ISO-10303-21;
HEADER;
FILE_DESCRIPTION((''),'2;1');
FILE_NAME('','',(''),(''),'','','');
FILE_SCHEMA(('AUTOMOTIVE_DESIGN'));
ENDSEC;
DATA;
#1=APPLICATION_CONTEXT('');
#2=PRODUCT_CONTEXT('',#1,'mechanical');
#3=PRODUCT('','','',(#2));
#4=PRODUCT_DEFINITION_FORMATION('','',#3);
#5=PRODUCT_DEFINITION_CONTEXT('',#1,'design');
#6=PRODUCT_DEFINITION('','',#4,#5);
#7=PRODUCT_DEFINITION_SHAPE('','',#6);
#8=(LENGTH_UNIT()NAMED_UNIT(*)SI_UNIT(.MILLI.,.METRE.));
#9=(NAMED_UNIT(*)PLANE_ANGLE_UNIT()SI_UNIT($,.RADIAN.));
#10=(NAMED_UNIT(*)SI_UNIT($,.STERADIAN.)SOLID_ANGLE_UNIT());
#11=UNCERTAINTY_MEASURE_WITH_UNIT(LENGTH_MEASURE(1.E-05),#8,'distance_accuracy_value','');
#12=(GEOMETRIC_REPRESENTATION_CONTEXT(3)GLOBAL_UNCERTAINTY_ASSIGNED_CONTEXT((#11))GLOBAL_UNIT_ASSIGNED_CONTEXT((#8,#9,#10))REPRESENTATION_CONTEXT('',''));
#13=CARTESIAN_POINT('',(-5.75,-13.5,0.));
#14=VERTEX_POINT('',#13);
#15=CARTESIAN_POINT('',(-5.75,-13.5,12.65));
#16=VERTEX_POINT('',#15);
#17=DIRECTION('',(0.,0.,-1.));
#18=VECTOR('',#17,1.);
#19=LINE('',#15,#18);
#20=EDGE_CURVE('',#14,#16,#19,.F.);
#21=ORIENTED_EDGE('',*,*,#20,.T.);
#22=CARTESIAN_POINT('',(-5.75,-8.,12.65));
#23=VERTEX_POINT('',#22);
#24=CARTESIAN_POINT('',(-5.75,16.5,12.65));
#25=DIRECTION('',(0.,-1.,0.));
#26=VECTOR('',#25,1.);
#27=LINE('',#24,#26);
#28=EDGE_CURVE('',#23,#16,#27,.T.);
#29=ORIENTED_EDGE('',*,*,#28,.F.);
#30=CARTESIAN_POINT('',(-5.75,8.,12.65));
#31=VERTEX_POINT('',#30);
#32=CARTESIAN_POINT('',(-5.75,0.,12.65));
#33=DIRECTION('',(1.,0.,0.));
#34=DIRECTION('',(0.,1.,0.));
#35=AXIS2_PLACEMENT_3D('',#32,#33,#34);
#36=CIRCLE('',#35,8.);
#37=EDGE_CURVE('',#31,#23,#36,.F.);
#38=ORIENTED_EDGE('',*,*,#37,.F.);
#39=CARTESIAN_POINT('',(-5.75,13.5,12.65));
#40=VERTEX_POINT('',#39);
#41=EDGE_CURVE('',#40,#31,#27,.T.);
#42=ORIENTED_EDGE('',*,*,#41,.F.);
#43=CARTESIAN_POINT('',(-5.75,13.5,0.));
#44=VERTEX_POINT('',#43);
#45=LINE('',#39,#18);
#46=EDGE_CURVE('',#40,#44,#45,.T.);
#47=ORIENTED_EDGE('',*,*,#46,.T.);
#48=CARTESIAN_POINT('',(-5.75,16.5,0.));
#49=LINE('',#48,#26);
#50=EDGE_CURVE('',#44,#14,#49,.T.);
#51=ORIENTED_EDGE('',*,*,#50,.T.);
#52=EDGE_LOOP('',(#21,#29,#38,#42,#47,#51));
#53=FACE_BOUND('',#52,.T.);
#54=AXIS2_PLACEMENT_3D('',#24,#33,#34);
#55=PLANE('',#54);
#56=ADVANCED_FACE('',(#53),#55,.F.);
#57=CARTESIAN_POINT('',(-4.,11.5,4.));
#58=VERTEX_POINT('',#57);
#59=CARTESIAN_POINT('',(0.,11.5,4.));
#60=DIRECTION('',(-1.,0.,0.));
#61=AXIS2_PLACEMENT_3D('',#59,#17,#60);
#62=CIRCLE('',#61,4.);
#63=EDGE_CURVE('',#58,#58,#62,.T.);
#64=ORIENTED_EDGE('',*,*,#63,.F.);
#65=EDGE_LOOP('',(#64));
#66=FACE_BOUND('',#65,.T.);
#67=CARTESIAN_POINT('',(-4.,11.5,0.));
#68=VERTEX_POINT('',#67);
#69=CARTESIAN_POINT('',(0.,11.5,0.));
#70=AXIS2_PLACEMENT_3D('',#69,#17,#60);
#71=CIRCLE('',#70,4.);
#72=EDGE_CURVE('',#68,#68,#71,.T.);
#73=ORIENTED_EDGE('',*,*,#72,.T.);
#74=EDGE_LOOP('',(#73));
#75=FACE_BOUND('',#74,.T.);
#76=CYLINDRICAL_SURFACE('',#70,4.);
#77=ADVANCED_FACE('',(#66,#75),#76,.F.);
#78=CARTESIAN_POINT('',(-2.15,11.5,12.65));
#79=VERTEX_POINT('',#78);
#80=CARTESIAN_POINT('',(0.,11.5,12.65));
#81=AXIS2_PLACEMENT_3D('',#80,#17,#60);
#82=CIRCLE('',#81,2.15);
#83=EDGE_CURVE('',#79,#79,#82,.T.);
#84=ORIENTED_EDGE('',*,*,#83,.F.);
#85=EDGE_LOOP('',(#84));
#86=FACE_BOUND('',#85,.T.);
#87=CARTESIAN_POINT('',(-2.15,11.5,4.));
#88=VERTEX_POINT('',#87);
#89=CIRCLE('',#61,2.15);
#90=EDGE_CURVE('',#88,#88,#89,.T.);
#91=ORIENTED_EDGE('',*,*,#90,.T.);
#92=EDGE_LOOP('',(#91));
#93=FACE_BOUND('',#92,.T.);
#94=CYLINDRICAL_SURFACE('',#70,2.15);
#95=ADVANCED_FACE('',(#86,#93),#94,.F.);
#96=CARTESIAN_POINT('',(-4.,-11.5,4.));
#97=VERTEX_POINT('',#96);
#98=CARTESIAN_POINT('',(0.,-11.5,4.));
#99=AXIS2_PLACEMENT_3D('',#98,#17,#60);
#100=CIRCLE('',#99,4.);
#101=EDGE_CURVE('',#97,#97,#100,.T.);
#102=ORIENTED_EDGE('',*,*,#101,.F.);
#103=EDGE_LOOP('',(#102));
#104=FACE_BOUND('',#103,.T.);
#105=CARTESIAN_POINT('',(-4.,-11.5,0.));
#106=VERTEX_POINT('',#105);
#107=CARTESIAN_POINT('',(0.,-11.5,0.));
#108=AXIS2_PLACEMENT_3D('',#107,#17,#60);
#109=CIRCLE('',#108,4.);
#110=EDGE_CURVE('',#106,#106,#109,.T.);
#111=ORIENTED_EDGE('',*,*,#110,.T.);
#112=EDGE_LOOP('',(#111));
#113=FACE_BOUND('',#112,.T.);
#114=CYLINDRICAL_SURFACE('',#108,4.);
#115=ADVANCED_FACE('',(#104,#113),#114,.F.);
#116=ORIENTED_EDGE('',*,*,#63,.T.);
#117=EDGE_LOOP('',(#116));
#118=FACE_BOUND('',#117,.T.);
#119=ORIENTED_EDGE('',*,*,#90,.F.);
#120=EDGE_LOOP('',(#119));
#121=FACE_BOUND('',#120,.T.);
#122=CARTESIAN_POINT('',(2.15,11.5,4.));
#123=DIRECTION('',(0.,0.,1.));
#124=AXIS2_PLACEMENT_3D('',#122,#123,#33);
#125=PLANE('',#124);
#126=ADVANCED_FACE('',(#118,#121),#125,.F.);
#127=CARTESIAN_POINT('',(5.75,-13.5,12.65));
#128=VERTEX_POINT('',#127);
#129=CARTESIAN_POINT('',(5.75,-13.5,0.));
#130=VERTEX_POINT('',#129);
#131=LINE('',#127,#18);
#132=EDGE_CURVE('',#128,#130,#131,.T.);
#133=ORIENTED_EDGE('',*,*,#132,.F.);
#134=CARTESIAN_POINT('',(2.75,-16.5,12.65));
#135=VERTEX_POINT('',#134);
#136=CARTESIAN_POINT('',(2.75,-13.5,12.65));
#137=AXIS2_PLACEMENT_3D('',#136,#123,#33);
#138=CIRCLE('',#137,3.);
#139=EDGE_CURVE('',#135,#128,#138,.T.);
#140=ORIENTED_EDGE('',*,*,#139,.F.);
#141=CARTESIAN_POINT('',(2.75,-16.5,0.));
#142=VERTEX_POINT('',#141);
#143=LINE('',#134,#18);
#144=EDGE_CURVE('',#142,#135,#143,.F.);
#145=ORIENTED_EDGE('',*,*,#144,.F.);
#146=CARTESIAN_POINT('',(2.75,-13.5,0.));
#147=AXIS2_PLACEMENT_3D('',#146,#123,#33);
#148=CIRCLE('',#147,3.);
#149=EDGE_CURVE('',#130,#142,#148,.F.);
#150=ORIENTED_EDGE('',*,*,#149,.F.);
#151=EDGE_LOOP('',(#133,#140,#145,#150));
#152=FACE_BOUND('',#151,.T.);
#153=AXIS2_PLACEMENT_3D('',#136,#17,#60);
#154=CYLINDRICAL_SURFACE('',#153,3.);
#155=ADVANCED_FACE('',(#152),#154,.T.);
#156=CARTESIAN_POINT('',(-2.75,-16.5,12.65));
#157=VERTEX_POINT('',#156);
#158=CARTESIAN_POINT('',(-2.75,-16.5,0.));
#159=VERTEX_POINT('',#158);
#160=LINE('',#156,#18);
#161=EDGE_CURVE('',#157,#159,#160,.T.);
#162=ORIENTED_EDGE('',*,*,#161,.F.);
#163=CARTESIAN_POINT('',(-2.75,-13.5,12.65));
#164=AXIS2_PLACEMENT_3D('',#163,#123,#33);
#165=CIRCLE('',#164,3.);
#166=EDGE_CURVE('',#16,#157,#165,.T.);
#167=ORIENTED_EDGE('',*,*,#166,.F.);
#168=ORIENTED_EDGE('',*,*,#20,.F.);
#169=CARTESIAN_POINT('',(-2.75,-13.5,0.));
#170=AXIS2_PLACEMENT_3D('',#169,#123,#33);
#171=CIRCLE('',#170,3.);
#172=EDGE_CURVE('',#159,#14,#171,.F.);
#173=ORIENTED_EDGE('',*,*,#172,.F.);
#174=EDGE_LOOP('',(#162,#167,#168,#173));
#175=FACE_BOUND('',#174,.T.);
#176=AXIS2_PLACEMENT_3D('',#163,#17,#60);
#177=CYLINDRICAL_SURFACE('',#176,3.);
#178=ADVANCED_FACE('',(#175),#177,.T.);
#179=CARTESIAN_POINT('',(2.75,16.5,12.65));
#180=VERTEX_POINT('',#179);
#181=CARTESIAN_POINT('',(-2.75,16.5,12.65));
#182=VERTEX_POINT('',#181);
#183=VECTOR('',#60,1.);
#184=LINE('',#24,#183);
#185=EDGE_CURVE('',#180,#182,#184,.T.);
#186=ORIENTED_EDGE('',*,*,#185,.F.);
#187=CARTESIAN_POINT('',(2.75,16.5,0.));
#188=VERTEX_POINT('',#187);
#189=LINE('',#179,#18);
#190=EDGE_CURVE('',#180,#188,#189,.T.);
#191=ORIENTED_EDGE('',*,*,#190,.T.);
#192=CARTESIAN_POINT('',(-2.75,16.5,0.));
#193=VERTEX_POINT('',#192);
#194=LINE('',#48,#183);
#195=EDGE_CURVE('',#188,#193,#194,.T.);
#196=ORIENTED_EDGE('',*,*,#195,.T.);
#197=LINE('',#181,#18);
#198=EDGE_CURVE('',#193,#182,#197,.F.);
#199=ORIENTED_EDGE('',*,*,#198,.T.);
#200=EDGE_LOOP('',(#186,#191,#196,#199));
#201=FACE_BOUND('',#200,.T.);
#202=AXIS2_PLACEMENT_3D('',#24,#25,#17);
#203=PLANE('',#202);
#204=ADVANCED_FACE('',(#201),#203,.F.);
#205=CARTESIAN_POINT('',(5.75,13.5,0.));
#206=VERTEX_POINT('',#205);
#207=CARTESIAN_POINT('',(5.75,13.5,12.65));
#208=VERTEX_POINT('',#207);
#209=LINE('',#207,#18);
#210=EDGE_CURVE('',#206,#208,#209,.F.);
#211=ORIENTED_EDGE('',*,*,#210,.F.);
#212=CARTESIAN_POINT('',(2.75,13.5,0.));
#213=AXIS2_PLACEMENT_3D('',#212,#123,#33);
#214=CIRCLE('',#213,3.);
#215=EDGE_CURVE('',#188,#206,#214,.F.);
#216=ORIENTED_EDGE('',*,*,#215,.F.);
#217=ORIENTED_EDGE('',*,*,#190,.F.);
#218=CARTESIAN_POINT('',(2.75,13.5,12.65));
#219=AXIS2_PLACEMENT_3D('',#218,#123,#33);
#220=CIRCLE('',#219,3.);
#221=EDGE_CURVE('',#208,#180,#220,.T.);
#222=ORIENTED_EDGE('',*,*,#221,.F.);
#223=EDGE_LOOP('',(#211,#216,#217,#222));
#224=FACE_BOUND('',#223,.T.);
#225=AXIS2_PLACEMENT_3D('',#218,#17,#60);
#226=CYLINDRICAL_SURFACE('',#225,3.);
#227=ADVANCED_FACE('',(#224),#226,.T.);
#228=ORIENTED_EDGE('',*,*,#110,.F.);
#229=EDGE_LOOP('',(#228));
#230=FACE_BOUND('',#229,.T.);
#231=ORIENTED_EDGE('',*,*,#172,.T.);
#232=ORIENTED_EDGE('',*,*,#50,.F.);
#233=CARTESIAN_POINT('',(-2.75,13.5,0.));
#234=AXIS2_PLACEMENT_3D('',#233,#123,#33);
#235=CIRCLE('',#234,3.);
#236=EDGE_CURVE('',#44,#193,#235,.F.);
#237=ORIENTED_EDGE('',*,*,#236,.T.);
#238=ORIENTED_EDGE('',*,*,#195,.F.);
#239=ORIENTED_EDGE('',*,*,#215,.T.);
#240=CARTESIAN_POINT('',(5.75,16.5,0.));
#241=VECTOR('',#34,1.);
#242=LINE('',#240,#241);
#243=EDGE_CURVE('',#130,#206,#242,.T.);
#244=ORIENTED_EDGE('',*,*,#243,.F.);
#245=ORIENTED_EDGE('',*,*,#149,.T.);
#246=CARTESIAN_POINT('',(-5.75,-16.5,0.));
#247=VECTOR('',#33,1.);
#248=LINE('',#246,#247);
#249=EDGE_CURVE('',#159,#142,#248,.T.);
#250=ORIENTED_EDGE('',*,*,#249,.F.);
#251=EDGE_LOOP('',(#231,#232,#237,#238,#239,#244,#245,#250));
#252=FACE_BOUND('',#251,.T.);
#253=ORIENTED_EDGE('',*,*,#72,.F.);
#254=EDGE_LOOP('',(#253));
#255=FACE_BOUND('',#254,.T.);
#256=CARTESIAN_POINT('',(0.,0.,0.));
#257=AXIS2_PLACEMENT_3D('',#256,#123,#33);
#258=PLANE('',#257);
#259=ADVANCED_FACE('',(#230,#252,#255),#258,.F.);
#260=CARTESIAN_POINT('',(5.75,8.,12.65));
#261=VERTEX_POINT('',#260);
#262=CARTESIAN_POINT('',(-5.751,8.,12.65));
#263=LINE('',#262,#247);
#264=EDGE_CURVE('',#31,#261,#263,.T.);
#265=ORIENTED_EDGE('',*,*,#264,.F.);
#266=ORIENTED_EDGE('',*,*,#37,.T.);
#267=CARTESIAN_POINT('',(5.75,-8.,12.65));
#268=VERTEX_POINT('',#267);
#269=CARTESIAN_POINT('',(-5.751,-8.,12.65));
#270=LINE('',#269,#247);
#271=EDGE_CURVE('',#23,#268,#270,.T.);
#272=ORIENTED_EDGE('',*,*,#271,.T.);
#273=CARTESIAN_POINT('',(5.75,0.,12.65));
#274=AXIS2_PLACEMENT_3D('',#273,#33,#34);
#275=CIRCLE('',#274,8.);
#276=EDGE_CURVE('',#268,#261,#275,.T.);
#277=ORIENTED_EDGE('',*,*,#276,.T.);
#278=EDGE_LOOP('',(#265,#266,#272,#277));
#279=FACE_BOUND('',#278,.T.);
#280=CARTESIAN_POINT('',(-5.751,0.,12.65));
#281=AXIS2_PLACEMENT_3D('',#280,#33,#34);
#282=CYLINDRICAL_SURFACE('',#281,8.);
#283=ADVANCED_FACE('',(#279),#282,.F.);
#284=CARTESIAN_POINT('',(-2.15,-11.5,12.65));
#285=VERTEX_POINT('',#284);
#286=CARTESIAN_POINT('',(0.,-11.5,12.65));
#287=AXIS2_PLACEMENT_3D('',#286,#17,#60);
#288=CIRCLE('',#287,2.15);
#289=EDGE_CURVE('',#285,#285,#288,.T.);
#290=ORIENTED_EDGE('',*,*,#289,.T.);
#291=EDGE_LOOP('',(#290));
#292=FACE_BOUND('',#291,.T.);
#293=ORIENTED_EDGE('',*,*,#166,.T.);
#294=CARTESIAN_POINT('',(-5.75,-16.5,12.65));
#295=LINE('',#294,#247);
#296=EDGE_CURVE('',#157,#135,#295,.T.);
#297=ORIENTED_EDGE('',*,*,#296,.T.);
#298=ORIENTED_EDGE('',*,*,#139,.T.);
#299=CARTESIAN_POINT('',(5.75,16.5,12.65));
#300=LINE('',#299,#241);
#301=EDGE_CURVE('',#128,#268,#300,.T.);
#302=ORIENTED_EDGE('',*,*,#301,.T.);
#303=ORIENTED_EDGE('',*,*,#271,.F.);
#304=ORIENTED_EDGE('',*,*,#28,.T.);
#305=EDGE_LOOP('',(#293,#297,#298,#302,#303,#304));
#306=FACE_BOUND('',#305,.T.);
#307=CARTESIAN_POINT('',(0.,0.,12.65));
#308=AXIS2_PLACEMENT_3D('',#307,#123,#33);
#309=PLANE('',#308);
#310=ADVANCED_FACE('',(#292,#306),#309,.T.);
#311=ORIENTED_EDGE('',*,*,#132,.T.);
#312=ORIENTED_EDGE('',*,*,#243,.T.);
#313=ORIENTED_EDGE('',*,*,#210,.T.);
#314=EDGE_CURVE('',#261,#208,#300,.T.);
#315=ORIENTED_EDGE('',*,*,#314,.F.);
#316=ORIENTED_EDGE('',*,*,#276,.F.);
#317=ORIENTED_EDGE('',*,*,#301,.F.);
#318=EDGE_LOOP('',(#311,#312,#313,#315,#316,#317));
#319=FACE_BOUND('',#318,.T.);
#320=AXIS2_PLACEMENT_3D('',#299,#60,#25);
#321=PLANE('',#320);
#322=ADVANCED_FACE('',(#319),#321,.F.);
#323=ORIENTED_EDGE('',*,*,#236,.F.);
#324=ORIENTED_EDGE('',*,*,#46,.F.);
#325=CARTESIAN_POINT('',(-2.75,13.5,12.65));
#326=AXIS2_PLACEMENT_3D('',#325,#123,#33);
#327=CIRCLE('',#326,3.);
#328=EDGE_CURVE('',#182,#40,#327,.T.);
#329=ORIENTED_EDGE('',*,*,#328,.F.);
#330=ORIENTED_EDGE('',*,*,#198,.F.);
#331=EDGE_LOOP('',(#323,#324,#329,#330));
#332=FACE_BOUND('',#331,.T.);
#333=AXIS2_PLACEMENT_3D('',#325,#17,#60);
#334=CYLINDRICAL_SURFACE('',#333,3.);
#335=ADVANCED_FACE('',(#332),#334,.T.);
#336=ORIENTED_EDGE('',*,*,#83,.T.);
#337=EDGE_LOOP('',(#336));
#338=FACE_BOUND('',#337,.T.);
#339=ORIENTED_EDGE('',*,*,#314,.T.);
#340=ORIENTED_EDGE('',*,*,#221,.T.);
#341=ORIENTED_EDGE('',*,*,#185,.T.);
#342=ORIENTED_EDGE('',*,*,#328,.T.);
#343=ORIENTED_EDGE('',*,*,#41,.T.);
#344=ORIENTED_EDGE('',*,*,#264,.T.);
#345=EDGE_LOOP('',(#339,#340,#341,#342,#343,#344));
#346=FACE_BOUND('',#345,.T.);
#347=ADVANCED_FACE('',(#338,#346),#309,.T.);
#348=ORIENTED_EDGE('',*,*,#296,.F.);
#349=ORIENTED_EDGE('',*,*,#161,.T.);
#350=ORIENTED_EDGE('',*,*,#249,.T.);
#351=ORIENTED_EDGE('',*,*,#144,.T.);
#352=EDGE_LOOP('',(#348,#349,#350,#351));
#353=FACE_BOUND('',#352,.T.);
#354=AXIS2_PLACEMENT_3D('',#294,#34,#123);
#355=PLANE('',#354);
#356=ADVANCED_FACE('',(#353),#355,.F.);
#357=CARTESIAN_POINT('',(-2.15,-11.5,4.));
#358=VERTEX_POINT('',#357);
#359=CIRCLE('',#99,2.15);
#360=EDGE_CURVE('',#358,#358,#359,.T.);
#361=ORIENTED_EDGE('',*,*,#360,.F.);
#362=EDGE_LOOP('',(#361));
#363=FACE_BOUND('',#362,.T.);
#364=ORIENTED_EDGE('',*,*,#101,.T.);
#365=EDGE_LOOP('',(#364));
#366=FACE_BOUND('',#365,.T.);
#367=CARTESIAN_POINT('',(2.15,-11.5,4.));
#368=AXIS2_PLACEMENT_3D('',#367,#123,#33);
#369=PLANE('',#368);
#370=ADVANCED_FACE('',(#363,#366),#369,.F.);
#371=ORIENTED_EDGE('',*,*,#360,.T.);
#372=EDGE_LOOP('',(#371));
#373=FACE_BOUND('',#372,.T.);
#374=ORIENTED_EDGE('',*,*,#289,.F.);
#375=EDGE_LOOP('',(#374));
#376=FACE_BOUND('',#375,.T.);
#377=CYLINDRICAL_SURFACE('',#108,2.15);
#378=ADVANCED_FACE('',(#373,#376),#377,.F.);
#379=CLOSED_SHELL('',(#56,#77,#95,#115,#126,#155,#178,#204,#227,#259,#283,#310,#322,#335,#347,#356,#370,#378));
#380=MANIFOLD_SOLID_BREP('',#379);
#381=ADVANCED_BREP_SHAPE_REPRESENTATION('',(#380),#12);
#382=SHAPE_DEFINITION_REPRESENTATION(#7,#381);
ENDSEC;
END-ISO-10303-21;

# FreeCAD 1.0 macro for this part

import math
import FreeCAD as App
import Part
import Sketcher


def edges_at(feature, points):
    """Names of the edges that pass closest to the given points."""
    edges = feature.Shape.Edges
    near = lambda p: min(range(len(edges)), key=lambda i: edges[i].distToShape(Part.Vertex(*p))[0])
    return sorted({f"Edge{near(p) + 1}" for p in points})


def add_polygon(sketch, points):
    """Adds a closed chain of lines whose ends are joined by coincident constraints."""
    first, n = sketch.GeometryCount, len(points)
    for a, b in zip(points, points[1:] + points[:1]):
        sketch.addGeometry(Part.LineSegment(App.Vector(*a, 0), App.Vector(*b, 0)), False)
    for i in range(n):
        sketch.addConstraint(Sketcher.Constraint("Coincident", first + i, 2, first + (i + 1) % n, 1))

doc = App.newDocument("Part")
body = doc.addObject("PartDesign::Body", "Body")

# Sketch on XY plane
sketch1 = body.newObject("Sketcher::SketchObject", "Sketch")
sketch1.AttachmentSupport = (doc.getObject("XY_Plane"), [""])
sketch1.MapMode = "FlatFace"
add_polygon(sketch1, [(-6, 16), (-6, -16), (6, -16), (6, 16)])  # lines 0-3
sketch1.addConstraint(Sketcher.Constraint("Vertical", 0))
sketch1.addConstraint(Sketcher.Constraint("Horizontal", 1))
sketch1.addConstraint(Sketcher.Constraint("Vertical", 2))
sketch1.addConstraint(Sketcher.Constraint("Horizontal", 3))
sketch1.addConstraint(Sketcher.Constraint("Symmetric", 0, 2, 2, 2, -1, 1))
sketch1.addConstraint(Sketcher.Constraint("DistanceY", 0, 2, 0, 1, 33.0))
sketch1.addConstraint(Sketcher.Constraint("DistanceX", 1, 1, 1, 2, 11.5))
pad1 = body.newObject("PartDesign::Pad", "Pad")
pad1.Profile = sketch1
pad1.Length = 12.65
doc.recompute()

fillet = body.newObject("PartDesign::Fillet", "Fillet")
fillet.Base = (pad1, edges_at(pad1, [
    (5.75, -16.5, 6.325),
    (-5.75, -16.5, 6.325),
    (-5.75, 16.5, 6.325),
    (5.75, 16.5, 6.325),
]))
fillet.Radius = 3

# Sketch on YZ plane
sketch2 = body.newObject("Sketcher::SketchObject", "Sketch001")
sketch2.AttachmentSupport = (doc.getObject("YZ_Plane"), [""])
sketch2.MapMode = "FlatFace"
sketch2.AttachmentOffset = App.Placement(App.Vector(0, 0, 5.75), App.Rotation())
sketch2.addGeometry(Part.LineSegment(App.Vector(8, 13, 0), App.Vector(-8, 13, 0)), False)
sketch2.addGeometry(Part.ArcOfCircle(Part.Circle(App.Vector(0, 13, 0), App.Vector(0, 0, 1), 8), math.radians(180), math.radians(360)), False)
sketch2.addConstraint(Sketcher.Constraint("Coincident", 0, 1, 1, 2))
sketch2.addConstraint(Sketcher.Constraint("Coincident", 1, 1, 0, 2))
sketch2.addConstraint(Sketcher.Constraint("Horizontal", 0))
sketch2.addConstraint(Sketcher.Constraint("PointOnObject", 1, 3, -2))
sketch2.addConstraint(Sketcher.Constraint("Horizontal", 1, 3, 0, 1))
sketch2.addConstraint(Sketcher.Constraint("Radius", 1, 8.0))
sketch2.addConstraint(Sketcher.Constraint("DistanceY", -1, 1, 1, 3, 12.65))
pocket1 = body.newObject("PartDesign::Pocket", "Pocket")
pocket1.Profile = sketch2
pocket1.Type = "UpToFirst"

# Sketch on XY plane
sketch3 = body.newObject("Sketcher::SketchObject", "Sketch002")
sketch3.AttachmentSupport = (doc.getObject("XY_Plane"), [""])
sketch3.MapMode = "FlatFace"
sketch3.addGeometry(Part.Circle(App.Vector(0, 11.5, 0), App.Vector(0, 0, 1), 2.1), False)
sketch3.addGeometry(Part.Circle(App.Vector(0, -11.5, 0), App.Vector(0, 0, 1), 2.1), False)
sketch3.addConstraint(Sketcher.Constraint("Equal", 0, 1))
sketch3.addConstraint(Sketcher.Constraint("Symmetric", 0, 3, 1, 3, -1, 1))
sketch3.addConstraint(Sketcher.Constraint("PointOnObject", 0, 3, -2))
sketch3.addConstraint(Sketcher.Constraint("Diameter", 0, 4.3))
sketch3.addConstraint(Sketcher.Constraint("DistanceY", 1, 3, 0, 3, 23.0))
doc.recompute()
hole = body.newObject("PartDesign::Hole", "Hole")
hole.Profile = sketch3
hole.ThreadType = "None"
hole.Diameter = 4.3
hole.DepthType = "ThroughAll"
hole.HoleCutType = "Counterbore"
hole.HoleCutDiameter = 8
hole.HoleCutDepth = 4
hole.Reversed = True

doc.recompute()
